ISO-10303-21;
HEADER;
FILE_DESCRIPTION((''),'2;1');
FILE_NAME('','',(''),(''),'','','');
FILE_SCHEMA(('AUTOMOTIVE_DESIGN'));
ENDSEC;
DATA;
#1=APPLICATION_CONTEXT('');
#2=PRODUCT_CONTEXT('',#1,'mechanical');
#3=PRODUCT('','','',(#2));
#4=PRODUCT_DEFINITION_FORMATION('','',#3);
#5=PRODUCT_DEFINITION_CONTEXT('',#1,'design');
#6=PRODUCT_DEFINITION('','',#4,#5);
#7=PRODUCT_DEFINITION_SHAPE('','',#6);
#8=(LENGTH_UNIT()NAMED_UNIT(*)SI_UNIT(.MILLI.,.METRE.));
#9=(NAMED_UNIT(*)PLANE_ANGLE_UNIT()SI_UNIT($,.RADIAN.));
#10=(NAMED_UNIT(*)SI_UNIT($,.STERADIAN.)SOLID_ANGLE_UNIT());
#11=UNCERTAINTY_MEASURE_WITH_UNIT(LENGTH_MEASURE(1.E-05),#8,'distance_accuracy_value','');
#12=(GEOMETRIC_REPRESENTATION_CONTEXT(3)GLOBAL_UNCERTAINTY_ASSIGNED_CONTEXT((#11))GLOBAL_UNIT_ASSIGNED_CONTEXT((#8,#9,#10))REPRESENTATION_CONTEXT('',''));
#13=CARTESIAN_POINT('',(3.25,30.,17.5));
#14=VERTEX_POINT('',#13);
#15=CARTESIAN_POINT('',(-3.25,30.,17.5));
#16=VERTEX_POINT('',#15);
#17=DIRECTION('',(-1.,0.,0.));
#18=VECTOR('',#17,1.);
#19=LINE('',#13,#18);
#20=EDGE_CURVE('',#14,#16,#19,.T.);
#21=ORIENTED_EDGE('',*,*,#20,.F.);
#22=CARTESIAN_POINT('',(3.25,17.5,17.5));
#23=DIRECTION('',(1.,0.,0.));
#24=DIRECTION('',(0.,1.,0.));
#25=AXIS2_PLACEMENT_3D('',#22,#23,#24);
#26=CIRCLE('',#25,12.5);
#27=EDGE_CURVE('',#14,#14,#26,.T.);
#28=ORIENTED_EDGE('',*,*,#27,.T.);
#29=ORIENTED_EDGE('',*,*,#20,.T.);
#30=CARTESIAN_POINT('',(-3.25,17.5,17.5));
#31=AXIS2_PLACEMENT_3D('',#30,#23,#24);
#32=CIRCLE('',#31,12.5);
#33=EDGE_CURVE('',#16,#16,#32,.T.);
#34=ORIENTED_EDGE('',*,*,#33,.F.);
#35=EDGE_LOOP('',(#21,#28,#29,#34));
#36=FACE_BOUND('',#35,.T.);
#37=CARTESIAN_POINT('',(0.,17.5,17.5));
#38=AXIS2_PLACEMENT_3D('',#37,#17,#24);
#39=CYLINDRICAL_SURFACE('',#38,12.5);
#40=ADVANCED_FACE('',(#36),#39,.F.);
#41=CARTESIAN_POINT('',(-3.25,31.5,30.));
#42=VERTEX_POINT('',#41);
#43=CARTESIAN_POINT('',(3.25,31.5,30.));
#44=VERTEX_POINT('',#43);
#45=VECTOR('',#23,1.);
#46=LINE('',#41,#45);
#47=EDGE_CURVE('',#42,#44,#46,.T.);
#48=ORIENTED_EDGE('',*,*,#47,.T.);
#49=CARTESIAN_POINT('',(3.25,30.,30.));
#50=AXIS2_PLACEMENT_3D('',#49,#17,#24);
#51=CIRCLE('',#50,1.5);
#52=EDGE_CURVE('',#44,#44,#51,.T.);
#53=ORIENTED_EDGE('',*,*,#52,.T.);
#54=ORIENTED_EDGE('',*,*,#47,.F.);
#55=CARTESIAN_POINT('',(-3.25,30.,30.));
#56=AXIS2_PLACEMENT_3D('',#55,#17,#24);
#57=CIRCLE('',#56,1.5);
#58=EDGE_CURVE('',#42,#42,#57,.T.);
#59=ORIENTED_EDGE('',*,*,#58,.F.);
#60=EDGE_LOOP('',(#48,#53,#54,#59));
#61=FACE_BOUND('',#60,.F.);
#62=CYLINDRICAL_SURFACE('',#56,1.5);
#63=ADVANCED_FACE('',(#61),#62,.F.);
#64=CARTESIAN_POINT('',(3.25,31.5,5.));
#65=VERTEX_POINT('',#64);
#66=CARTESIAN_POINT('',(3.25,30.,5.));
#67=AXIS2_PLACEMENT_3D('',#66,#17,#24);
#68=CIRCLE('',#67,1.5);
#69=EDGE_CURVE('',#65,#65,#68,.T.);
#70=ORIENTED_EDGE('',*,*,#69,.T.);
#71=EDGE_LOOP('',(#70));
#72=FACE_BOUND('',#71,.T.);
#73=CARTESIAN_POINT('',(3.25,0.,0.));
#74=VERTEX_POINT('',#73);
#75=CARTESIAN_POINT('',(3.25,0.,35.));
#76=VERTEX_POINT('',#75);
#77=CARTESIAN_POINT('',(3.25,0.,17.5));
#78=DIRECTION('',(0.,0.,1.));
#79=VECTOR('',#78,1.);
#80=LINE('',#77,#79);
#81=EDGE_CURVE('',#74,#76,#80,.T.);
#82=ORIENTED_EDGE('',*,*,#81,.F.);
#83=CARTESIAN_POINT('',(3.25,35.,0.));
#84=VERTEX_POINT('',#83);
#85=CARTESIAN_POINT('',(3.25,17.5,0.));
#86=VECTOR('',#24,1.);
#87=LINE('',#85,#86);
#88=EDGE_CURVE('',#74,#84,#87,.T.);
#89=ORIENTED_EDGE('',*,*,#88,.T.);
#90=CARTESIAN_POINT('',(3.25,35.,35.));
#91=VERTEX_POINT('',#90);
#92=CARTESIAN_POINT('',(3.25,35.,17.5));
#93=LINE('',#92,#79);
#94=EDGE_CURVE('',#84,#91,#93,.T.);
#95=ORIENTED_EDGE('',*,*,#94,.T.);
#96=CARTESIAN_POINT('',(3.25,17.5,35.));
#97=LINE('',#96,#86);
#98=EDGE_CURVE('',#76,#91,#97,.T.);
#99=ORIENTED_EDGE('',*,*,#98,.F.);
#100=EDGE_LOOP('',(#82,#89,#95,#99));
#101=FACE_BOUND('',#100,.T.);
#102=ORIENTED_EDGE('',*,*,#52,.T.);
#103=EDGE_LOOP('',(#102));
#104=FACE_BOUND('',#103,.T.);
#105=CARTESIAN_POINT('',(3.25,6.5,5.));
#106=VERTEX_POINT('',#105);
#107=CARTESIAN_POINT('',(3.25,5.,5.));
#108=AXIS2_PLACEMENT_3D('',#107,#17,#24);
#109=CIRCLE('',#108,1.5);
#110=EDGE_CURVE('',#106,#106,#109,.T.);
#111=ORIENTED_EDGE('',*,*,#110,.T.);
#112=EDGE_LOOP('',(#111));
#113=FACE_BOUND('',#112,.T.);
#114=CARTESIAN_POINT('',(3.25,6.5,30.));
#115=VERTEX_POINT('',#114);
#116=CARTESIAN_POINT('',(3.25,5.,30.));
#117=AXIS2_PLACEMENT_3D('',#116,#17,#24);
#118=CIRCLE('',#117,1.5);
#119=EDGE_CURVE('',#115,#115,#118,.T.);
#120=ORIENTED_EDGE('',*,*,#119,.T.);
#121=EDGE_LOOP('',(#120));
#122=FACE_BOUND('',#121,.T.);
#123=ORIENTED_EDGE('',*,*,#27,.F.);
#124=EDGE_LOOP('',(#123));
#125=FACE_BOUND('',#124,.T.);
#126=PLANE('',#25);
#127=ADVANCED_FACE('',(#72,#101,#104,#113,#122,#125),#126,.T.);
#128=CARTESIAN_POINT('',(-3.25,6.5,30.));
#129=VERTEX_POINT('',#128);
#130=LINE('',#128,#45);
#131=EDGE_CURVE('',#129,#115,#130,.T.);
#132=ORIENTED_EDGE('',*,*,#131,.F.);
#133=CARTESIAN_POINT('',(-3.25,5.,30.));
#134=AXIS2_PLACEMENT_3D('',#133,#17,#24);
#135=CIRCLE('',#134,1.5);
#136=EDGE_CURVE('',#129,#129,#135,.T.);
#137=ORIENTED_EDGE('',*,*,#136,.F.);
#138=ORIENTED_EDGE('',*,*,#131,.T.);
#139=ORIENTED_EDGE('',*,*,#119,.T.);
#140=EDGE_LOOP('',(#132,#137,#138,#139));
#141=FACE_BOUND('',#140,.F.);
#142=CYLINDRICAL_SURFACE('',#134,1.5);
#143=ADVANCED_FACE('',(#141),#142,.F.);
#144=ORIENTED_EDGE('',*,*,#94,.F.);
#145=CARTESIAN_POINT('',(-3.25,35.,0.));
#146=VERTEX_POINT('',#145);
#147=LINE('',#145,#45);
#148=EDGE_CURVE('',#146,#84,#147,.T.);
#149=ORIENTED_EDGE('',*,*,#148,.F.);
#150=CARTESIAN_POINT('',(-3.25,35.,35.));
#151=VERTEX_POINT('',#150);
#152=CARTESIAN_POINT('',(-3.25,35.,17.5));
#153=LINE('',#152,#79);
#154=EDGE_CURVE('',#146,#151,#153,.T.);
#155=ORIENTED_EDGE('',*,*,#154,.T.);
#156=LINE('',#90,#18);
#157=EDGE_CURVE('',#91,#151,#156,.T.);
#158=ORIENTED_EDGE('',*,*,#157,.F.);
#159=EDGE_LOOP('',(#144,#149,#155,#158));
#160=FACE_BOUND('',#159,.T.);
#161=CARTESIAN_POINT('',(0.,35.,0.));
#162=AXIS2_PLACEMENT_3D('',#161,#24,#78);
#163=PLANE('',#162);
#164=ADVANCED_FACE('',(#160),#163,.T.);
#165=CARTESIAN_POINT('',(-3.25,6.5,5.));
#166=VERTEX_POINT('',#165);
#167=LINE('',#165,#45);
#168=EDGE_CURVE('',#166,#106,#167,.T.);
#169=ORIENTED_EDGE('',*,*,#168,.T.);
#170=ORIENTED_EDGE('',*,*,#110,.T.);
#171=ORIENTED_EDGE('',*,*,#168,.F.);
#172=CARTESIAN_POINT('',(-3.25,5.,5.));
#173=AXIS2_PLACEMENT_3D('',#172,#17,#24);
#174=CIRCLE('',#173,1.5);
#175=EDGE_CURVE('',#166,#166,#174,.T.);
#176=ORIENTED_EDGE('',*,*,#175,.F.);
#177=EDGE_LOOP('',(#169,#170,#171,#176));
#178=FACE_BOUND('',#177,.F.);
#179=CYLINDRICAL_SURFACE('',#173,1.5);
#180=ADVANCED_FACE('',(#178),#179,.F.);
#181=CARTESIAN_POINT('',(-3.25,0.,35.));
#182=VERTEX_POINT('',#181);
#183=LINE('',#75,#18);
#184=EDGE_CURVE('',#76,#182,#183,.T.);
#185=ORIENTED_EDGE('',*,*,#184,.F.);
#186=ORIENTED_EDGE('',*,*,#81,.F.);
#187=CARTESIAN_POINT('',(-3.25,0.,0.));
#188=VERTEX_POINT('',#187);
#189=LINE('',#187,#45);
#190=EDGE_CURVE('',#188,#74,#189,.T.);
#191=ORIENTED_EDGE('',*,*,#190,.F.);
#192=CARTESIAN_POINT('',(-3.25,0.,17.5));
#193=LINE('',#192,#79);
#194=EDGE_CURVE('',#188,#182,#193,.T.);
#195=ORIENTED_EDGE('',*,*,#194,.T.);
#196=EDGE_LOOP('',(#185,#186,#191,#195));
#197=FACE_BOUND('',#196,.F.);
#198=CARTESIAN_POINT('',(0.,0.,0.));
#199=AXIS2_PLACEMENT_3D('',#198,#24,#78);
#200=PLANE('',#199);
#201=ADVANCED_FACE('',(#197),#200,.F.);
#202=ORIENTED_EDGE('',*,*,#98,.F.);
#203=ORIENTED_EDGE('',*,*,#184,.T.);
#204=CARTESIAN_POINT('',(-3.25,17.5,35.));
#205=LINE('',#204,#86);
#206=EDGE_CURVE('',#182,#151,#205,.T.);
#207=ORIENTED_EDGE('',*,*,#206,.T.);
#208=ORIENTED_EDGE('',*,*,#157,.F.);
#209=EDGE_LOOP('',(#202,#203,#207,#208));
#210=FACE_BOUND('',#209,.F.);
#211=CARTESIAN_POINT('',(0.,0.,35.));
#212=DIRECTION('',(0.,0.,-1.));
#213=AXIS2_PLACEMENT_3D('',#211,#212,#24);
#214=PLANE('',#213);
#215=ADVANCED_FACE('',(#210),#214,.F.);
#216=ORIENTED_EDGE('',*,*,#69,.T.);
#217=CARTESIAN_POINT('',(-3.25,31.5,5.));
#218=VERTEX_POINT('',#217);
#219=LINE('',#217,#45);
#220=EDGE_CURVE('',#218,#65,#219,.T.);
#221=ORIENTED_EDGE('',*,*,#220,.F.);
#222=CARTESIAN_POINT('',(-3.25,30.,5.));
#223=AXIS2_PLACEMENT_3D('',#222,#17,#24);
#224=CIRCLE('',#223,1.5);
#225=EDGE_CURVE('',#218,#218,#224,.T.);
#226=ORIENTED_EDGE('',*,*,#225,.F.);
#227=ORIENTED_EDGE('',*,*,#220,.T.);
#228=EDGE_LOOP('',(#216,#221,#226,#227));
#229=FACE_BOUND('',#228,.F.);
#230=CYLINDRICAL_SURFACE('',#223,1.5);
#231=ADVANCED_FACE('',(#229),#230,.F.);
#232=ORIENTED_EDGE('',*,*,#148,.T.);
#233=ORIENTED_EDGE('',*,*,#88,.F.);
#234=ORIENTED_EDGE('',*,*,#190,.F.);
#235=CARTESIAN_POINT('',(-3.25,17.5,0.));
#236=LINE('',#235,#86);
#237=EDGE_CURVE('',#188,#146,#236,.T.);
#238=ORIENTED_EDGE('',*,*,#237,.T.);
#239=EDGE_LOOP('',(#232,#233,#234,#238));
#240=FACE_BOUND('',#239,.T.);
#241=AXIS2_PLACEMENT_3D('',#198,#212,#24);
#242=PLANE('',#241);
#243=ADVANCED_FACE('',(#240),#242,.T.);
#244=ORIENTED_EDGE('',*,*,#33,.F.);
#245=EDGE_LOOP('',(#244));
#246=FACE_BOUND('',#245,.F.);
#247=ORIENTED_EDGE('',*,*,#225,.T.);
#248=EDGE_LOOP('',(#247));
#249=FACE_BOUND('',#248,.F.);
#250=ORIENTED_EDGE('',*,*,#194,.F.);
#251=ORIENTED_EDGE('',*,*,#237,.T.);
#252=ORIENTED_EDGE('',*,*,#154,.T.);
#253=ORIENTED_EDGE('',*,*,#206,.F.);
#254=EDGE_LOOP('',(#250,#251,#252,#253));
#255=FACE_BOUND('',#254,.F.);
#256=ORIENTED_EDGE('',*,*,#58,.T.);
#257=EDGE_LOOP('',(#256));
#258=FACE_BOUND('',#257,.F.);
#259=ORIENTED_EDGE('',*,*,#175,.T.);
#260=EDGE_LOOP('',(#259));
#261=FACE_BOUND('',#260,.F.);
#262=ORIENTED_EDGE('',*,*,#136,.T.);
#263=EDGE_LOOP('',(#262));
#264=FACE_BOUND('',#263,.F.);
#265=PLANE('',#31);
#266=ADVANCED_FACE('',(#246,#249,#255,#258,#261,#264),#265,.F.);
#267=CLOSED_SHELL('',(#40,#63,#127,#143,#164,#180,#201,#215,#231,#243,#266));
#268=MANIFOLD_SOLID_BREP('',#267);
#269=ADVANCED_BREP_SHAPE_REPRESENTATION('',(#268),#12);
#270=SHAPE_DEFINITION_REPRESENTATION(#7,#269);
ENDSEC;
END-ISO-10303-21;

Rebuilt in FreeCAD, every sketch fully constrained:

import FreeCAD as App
import Part
import Sketcher
from FreeCAD import Vector

doc = App.newDocument("Part")
body = doc.addObject("PartDesign::Body", "Body")

sketch1 = doc.addObject("Sketcher::SketchObject", "Sketch")
body.addObject(sketch1)
sketch1.AttachmentSupport = (doc.YZ_Plane, [""])
sketch1.MapMode = "FlatFace"
sketch1.addGeometry([
    Part.LineSegment(Vector(0, 35, 0), Vector(0, 0, 0)),
    Part.LineSegment(Vector(0, 0, 0), Vector(35, 0, 0)),
    Part.LineSegment(Vector(35, 0, 0), Vector(35, 35, 0)),
    Part.LineSegment(Vector(35, 35, 0), Vector(0, 35, 0)),
    Part.Circle(Vector(17.5, 17.5, 0), Vector(0, 0, 1), 12.5),
], False)
sketch1.addConstraint([
    Sketcher.Constraint("Coincident", 0, 2, 1, 1),
    Sketcher.Constraint("Coincident", 1, 2, 2, 1),
    Sketcher.Constraint("Coincident", 2, 2, 3, 1),
    Sketcher.Constraint("Coincident", 3, 2, 0, 1),
    Sketcher.Constraint("Vertical", 0),
    Sketcher.Constraint("Horizontal", 1),
    Sketcher.Constraint("Vertical", 2),
    Sketcher.Constraint("Horizontal", 3),
    Sketcher.Constraint("Coincident", 0, 2, -1, 1),
    Sketcher.Constraint("Equal", 3, 0),
    Sketcher.Constraint("Diameter", 4, 25.0),
    Sketcher.Constraint("DistanceX", 1, 1, 1, 2, 35.0),
    Sketcher.Constraint("DistanceX", -1, 1, 4, 3, 17.5),
    Sketcher.Constraint("DistanceY", -1, 1, 4, 3, 17.5),
])
pad1 = doc.addObject("PartDesign::Pad", "Pad")
body.addObject(pad1)
pad1.Profile = sketch1
pad1.Length = 6.5
pad1.Midplane = True

sketch2 = doc.addObject("Sketcher::SketchObject", "Sketch001")
body.addObject(sketch2)
sketch2.AttachmentSupport = (doc.YZ_Plane, [""])
sketch2.MapMode = "FlatFace"
sketch2.AttachmentOffset = App.Placement(Vector(0, 0, -3.25), App.Rotation())
sketch2.addGeometry([
    Part.Circle(Vector(30, 30, 0), Vector(0, 0, 1), 1.5),
    Part.Circle(Vector(5, 5, 0), Vector(0, 0, 1), 1.5),
    Part.Circle(Vector(30, 5, 0), Vector(0, 0, 1), 1.5),
    Part.Circle(Vector(5, 30, 0), Vector(0, 0, 1), 1.5),
], False)
sketch2.addConstraint([
    Sketcher.Constraint("Equal", 0, 1),
    Sketcher.Constraint("Equal", 1, 2),
    Sketcher.Constraint("Equal", 2, 3),
    Sketcher.Constraint("Horizontal", 1, 3, 2, 3),
    Sketcher.Constraint("Horizontal", 0, 3, 3, 3),
    Sketcher.Constraint("Vertical", 0, 3, 2, 3),
    Sketcher.Constraint("Vertical", 1, 3, 3, 3),
    Sketcher.Constraint("Diameter", 0, 3.0),
    Sketcher.Constraint("DistanceX", -1, 1, 0, 3, 30.0),
    Sketcher.Constraint("DistanceY", -1, 1, 0, 3, 30.0),
    Sketcher.Constraint("DistanceX", -1, 1, 1, 3, 5.0),
    Sketcher.Constraint("DistanceY", -1, 1, 1, 3, 5.0),
])
pocket1 = doc.addObject("PartDesign::Pocket", "Pocket")
body.addObject(pocket1)
pocket1.Profile = sketch2
pocket1.Length = 25
pocket1.Reversed = True

doc.recompute()
